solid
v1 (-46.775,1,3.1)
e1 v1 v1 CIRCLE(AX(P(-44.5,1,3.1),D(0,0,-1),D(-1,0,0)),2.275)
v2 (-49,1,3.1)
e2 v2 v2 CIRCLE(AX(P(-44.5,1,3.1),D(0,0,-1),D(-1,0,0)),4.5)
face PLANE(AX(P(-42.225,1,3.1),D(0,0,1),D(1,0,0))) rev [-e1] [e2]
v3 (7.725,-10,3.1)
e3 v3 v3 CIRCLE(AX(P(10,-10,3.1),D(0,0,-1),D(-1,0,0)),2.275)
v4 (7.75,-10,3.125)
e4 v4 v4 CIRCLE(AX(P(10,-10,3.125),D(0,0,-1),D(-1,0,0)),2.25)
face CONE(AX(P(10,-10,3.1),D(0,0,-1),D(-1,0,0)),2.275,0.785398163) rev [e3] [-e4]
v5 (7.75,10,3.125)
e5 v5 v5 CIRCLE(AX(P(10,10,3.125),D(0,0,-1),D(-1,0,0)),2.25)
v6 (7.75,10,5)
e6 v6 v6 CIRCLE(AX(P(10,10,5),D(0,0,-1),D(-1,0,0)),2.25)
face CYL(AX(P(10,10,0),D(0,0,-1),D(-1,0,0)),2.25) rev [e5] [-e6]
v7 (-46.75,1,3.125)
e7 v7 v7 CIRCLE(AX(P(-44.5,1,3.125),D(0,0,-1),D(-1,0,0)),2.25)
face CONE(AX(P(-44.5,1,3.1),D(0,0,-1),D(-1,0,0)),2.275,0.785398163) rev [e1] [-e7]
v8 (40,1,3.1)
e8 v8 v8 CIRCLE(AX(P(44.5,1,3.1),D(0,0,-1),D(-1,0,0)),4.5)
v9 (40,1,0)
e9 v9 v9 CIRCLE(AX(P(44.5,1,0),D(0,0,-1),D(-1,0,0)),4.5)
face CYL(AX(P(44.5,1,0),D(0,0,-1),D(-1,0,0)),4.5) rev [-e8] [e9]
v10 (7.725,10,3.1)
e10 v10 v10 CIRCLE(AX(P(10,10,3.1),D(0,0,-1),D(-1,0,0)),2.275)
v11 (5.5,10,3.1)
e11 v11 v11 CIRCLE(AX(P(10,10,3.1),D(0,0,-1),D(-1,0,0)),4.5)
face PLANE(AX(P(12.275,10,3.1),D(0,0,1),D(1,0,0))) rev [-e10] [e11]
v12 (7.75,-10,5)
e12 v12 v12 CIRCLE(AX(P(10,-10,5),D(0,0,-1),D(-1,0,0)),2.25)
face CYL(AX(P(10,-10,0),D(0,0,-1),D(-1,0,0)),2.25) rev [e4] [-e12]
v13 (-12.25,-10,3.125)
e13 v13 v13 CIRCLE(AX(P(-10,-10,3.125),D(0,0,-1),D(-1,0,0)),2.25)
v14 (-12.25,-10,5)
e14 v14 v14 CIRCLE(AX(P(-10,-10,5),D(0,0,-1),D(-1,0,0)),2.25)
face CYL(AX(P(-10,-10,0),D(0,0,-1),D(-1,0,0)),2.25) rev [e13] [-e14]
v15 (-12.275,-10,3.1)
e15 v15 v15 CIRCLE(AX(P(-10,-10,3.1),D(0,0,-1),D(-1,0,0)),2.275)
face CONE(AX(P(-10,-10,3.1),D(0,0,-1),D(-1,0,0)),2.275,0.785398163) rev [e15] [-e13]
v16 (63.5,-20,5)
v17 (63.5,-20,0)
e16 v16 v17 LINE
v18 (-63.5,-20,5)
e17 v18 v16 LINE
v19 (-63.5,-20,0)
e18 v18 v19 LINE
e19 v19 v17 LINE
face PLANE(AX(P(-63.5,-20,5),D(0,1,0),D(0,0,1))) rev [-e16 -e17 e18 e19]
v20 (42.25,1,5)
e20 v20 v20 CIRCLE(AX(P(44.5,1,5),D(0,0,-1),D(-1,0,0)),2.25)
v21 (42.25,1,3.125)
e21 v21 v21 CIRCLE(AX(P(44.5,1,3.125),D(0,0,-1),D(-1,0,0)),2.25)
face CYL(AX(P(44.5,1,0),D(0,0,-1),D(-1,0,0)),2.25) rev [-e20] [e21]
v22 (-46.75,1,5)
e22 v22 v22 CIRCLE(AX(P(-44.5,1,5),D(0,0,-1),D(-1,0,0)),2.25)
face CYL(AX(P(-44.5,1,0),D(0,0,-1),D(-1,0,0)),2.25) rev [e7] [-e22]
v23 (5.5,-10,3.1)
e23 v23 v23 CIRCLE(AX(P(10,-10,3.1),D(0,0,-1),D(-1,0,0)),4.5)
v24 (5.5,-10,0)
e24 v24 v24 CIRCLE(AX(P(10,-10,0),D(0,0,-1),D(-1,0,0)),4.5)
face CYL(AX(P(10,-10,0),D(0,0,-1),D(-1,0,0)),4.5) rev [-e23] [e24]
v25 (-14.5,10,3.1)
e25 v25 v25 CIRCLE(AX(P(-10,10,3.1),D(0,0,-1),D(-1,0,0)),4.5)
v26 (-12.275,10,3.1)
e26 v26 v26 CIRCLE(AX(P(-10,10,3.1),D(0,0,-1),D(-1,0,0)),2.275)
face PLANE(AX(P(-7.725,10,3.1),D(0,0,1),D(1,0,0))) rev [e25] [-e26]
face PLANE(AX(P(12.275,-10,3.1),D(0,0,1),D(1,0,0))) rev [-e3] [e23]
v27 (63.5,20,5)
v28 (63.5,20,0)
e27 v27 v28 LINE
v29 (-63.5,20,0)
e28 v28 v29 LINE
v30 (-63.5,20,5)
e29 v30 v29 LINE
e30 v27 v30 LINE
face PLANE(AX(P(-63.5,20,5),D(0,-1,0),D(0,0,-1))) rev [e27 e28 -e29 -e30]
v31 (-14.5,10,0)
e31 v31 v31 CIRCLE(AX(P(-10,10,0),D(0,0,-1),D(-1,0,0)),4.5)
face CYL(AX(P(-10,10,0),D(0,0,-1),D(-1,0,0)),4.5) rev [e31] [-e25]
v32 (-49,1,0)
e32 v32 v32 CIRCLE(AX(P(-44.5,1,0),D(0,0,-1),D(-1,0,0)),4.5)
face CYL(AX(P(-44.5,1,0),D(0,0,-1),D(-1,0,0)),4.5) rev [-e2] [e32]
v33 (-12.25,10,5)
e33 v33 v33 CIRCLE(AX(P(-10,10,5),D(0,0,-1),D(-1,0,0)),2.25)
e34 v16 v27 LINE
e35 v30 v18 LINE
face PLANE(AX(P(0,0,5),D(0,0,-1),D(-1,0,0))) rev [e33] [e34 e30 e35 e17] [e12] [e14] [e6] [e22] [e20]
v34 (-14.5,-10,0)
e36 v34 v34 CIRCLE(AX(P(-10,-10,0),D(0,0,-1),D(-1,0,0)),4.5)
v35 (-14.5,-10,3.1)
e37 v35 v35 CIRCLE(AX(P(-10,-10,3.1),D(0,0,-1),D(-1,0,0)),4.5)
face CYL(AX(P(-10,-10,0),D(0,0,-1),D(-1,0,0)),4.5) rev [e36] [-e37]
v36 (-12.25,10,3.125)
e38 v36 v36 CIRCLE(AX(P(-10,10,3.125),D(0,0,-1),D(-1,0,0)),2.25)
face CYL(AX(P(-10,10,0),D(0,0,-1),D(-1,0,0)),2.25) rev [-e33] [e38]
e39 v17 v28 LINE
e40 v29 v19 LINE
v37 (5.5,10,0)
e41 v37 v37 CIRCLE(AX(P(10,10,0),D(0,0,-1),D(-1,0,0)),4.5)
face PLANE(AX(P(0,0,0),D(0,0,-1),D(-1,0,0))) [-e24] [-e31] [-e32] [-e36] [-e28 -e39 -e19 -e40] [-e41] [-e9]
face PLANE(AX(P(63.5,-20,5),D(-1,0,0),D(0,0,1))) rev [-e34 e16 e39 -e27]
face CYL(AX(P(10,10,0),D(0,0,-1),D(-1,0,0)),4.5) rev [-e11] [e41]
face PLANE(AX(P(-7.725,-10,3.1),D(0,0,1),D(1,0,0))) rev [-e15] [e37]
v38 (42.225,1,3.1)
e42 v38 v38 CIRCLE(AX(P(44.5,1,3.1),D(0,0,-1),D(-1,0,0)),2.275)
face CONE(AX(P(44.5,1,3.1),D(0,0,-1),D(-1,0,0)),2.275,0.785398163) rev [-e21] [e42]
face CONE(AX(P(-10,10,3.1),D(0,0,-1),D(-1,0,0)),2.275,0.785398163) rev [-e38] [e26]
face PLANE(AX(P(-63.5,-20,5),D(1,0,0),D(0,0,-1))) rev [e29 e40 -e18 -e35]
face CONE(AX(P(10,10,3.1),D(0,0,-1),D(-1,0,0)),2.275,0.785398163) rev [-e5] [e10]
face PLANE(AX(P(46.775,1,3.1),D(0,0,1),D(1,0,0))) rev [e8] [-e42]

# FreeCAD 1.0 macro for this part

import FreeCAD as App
import Part
import Sketcher

V = App.Vector
Q = App.Units.Quantity


def add_polygon(sketch, points):
    """Adds a closed chain of lines whose ends are joined by coincident constraints."""
    first, n = sketch.GeometryCount, len(points)
    for a, b in zip(points, points[1:] + points[:1]):
        sketch.addGeometry(Part.LineSegment(App.Vector(*a, 0), App.Vector(*b, 0)), False)
    for i in range(n):
        sketch.addConstraint(Sketcher.Constraint("Coincident", first + i, 2, first + (i + 1) % n, 1))

doc = App.newDocument("Part")
body = doc.addObject("PartDesign::Body", "Body")

# Sketch on XY plane
sketch1 = doc.addObject("Sketcher::SketchObject", "Sketch")
body.addObject(sketch1)
sketch1.AttachmentSupport = (doc.XY_Plane, [""])
sketch1.MapMode = "FlatFace"
add_polygon(sketch1, [(-64, 20), (-64, -20), (64, -20), (64, 20)])  # lines 0-3
sketch1.addConstraint([
    Sketcher.Constraint("Vertical", 0),
    Sketcher.Constraint("Horizontal", 1),
    Sketcher.Constraint("Vertical", 2),
    Sketcher.Constraint("Horizontal", 3),
    Sketcher.Constraint("Symmetric", 0, 2, 2, 2, -1, 1),
    Sketcher.Constraint("DistanceX", 1, 1, 1, 2, 127.0),
    Sketcher.Constraint("DistanceY", 0, 2, 0, 1, 40.0),
])
pad1 = doc.addObject("PartDesign::Pad", "Pad")
body.addObject(pad1)
pad1.Profile = sketch1
pad1.Length = 5

# Sketch on YZ plane
sketch2 = doc.addObject("Sketcher::SketchObject", "Sketch001")
body.addObject(sketch2)
sketch2.AttachmentSupport = (doc.YZ_Plane, [""])
sketch2.MapMode = "FlatFace"
sketch2.AttachmentOffset = App.Placement(V(0, 0, 44.5), App.Rotation())
add_polygon(sketch2, [(1, 5), (1, 0), (5.5, 0), (5.5, 3.1), (3.275, 3.1), (3.25, 3.125), (3.25, 5)])  # lines 0-6
sketch2.addGeometry(Part.LineSegment(V(1, 0, 0), V(1, 5, 0)), True)  # axis
sketch2.addConstraint([
    Sketcher.Constraint("Vertical", 0),
    Sketcher.Constraint("Horizontal", 1),
    Sketcher.Constraint("Vertical", 2),
    Sketcher.Constraint("Horizontal", 3),
    Sketcher.Constraint("Vertical", 5),
    Sketcher.Constraint("Horizontal", 6),
    Sketcher.Constraint("Vertical", 7),
    Sketcher.Constraint("Coincident", 7, 1, 0, 2),
    Sketcher.Constraint("PointOnObject", 0, 2, -1),
    Sketcher.Constraint("Horizontal", 5, 2, 7, 2),
    Sketcher.Constraint("DistanceY", 0, 2, 0, 1, 5.0),
    Sketcher.Constraint("Angle", 4, Q("135 deg")),
    Sketcher.Constraint("DistanceX", 1, 1, 1, 2, 4.5),
    Sketcher.Constraint("DistanceY", 2, 1, 2, 2, 3.1),
    Sketcher.Constraint("DistanceX", -1, 1, 0, 2, 1.0),
    Sketcher.Constraint("DistanceX", 6, 2, 6, 1, 2.25),
    Sketcher.Constraint("DistanceX", 3, 2, 3, 1, 2.225),
])
groove = doc.addObject("PartDesign::Groove", "Groove")
body.addObject(groove)
groove.Profile = sketch2
groove.ReferenceAxis = (sketch2, ["Axis0"])
groove.Angle = 360
doc.recompute()

linearpattern = doc.addObject("PartDesign::LinearPattern", "LinearPattern")
body.addObject(linearpattern)
linearpattern.Originals = [groove]
linearpattern.Direction = (doc.X_Axis, [""])
linearpattern.Mode = "offset"
linearpattern.Offset = 89
linearpattern.Occurrences = 2
linearpattern.Reversed = True
body.Tip = linearpattern

# Sketch on XY plane
sketch3 = doc.addObject("Sketcher::SketchObject", "Sketch002")
body.addObject(sketch3)
sketch3.AttachmentSupport = (doc.XY_Plane, [""])
sketch3.MapMode = "FlatFace"
sketch3.AttachmentOffset = App.Placement(V(0, 0, 5), App.Rotation())
sketch3.addGeometry([
    Part.Circle(V(10, -10, 0), V(0, 0, 1), 1.2),
    Part.Circle(V(10, 10, 0), V(0, 0, 1), 1.2),
    Part.Circle(V(-10, -10, 0), V(0, 0, 1), 1.2),
    Part.Circle(V(-10, 10, 0), V(0, 0, 1), 1.2),
], False)
sketch3.addConstraint([
    Sketcher.Constraint("Equal", 0, 1),
    Sketcher.Constraint("Equal", 1, 2),
    Sketcher.Constraint("Equal", 2, 3),
    Sketcher.Constraint("Symmetric", 1, 3, 2, 3, -1, 1),
    Sketcher.Constraint("Symmetric", 0, 3, 3, 3, -1, 1),
    Sketcher.Constraint("Symmetric", 0, 3, 2, 3, -2),
    Sketcher.Constraint("Diameter", 0, 2.4),
    Sketcher.Constraint("DistanceX", -1, 1, 0, 3, 10.0),
    Sketcher.Constraint("DistanceY", 0, 3, -1, 1, 10.0),
])
doc.recompute()
hole = doc.addObject("PartDesign::Hole", "Hole")
body.addObject(hole)
hole.Profile = sketch3
hole.ThreadType = "None"
hole.Diameter = 2.4
hole.DepthType = "ThroughAll"

# Sketch on YZ plane
sketch4 = doc.addObject("Sketcher::SketchObject", "Sketch003")
body.addObject(sketch4)
sketch4.AttachmentSupport = (doc.YZ_Plane, [""])
sketch4.MapMode = "FlatFace"
sketch4.AttachmentOffset = App.Placement(V(0, 0, 10), App.Rotation())
add_polygon(sketch4, [(-10, 5), (-10, 0), (-5.5, 0), (-5.5, 3.1), (-7.725, 3.1), (-7.75, 3.125), (-7.75, 5)])  # lines 0-6
sketch4.addGeometry(Part.LineSegment(V(-10, 0, 0), V(-10, 5, 0)), True)  # axis
sketch4.addConstraint([
    Sketcher.Constraint("Vertical", 0),
    Sketcher.Constraint("Horizontal", 1),
    Sketcher.Constraint("Vertical", 2),
    Sketcher.Constraint("Horizontal", 3),
    Sketcher.Constraint("Vertical", 5),
    Sketcher.Constraint("Horizontal", 6),
    Sketcher.Constraint("Vertical", 7),
    Sketcher.Constraint("Coincident", 7, 1, 0, 2),
    Sketcher.Constraint("PointOnObject", 0, 2, -1),
    Sketcher.Constraint("Horizontal", 5, 2, 7, 2),
    Sketcher.Constraint("DistanceY", 0, 2, 0, 1, 5.0),
    Sketcher.Constraint("Angle", 4, Q("135 deg")),
    Sketcher.Constraint("DistanceX", 1, 1, 1, 2, 4.5),
    Sketcher.Constraint("DistanceY", 2, 1, 2, 2, 3.1),
    Sketcher.Constraint("DistanceX", 0, 2, -1, 1, 10.0),
    Sketcher.Constraint("DistanceX", 6, 2, 6, 1, 2.25),
    Sketcher.Constraint("DistanceX", 3, 2, 3, 1, 2.225),
])
groove2 = doc.addObject("PartDesign::Groove", "Groove001")
body.addObject(groove2)
groove2.Profile = sketch4
groove2.ReferenceAxis = (sketch4, ["Axis0"])
groove2.Angle = 360
doc.recompute()

linearpattern2 = doc.addObject("PartDesign::LinearPattern", "LinearPattern001")
body.addObject(linearpattern2)
linearpattern2.Originals = [groove2]
linearpattern2.Direction = (doc.Y_Axis, [""])
linearpattern2.Mode = "offset"
linearpattern2.Offset = 20
linearpattern2.Occurrences = 2
body.Tip = linearpattern2
doc.recompute()

linearpattern3 = doc.addObject("PartDesign::LinearPattern", "LinearPattern002")
body.addObject(linearpattern3)
linearpattern3.Originals = [groove2]
linearpattern3.Direction = (doc.X_Axis, [""])
linearpattern3.Mode = "offset"
linearpattern3.Offset = 20
linearpattern3.Occurrences = 2
linearpattern3.Reversed = True
body.Tip = linearpattern3
doc.recompute()

datumline = doc.addObject("PartDesign::Line", "DatumLine")
body.addObject(datumline)
datumline.Placement = App.Placement(V(0, 0, 0), App.Rotation(V(0, 0, 1), V(-0.707106781, 0.707106781, 0)))
linearpattern4 = doc.addObject("PartDesign::LinearPattern", "LinearPattern003")
body.addObject(linearpattern4)
linearpattern4.Originals = [groove2]
linearpattern4.Direction = (datumline, [""])
linearpattern4.Mode = "offset"
linearpattern4.Offset = 28.284271
linearpattern4.Occurrences = 2
body.Tip = linearpattern4

doc.recompute()
